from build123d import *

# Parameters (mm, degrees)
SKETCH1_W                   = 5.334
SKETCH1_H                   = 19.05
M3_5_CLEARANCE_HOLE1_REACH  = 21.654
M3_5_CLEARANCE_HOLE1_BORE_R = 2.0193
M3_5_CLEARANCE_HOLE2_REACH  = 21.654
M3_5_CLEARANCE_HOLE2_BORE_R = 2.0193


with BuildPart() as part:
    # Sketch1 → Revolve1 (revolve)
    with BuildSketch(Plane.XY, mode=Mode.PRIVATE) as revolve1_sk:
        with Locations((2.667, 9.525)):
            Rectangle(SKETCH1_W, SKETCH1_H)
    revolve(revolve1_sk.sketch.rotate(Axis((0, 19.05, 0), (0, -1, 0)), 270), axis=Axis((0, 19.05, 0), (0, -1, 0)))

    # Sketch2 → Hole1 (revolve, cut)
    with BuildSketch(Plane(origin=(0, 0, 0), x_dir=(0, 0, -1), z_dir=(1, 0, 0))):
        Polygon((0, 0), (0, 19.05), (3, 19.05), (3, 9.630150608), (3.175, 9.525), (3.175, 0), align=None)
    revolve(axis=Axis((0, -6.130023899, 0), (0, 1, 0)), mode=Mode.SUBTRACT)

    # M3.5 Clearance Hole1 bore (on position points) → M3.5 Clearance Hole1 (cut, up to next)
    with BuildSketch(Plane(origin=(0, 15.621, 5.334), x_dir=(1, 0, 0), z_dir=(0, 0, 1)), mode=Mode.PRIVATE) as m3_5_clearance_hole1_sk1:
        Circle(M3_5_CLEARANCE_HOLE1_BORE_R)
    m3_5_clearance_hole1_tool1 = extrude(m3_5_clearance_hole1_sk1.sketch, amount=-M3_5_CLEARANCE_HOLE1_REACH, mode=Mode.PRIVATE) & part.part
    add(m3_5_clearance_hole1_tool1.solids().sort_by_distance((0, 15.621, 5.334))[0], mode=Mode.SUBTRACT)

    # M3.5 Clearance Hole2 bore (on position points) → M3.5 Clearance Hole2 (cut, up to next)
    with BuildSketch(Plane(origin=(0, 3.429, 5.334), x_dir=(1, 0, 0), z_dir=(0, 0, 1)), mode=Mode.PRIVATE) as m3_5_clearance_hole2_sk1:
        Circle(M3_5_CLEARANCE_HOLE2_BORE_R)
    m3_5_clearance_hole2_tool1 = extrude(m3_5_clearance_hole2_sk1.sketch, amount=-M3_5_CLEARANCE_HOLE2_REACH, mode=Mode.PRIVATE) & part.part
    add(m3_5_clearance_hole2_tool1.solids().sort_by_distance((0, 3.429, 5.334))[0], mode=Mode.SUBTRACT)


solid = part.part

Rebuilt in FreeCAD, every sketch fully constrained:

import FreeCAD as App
import Part
import Sketcher
from FreeCAD import Vector
Q = App.Units.Quantity


def add_polygon(sketch, points):
    """Adds a closed chain of lines whose ends are joined by coincident constraints."""
    first, n = sketch.GeometryCount, len(points)
    for a, b in zip(points, points[1:] + points[:1]):
        sketch.addGeometry(Part.LineSegment(App.Vector(*a, 0), App.Vector(*b, 0)), False)
    for i in range(n):
        sketch.addConstraint(Sketcher.Constraint("Coincident", first + i, 2, first + (i + 1) % n, 1))

doc = App.newDocument("Part")
params = doc.addObject("Spreadsheet::Sheet", "Params")
for row, (alias, value) in enumerate([
    ("sketch1_width", "0.21 in"),
    ("sketch1_height", "0.75 in"),
    ("revolution_angle", "360 deg"),
    ("sketch2_width", "0.75 in"),
    ("sketch2_width2", "0.375 in"),
    ("sketch2_height", "0.125 in"),
    ("groove_angle", "360 deg"),
    ("sketch3_diameter", "0.159 in"),
    ("sketch4_diameter", "0.159 in"),
], start=1):
    params.set(f"A{row}", alias)
    params.set(f"B{row}", "=" + value)
    params.setAlias(f"B{row}", alias)

body = doc.addObject("PartDesign::Body", "Body")

sketch1 = body.newObject("Sketcher::SketchObject", "Sketch")
sketch1.AttachmentSupport = (doc.getObject("XY_Plane"), [""])
sketch1.MapMode = "FlatFace"
add_polygon(sketch1, [(0, 19), (0, 0), (5, 0), (5, 19)])
sketch1.addConstraint(Sketcher.Constraint("Vertical", 0))
sketch1.addConstraint(Sketcher.Constraint("Horizontal", 1))
sketch1.addConstraint(Sketcher.Constraint("Vertical", 2))
sketch1.addConstraint(Sketcher.Constraint("Horizontal", 3))
sketch1.addConstraint(Sketcher.Constraint("Coincident", 0, 2, -1, 1))
sketch1.addConstraint(Sketcher.Constraint("DistanceX", 1, 1, 1, 2, Q("0.21 in")))
sketch1.addConstraint(Sketcher.Constraint("DistanceY", 0, 2, 0, 1, Q("0.75 in")))
sketch1.setExpression("Constraints[9]", "Params.sketch1_width")
sketch1.setExpression("Constraints[10]", "Params.sketch1_height")
revolution = body.newObject("PartDesign::Revolution", "Revolution")
revolution.Profile = sketch1
revolution.ReferenceAxis = (sketch1, ["V_Axis"])
revolution.setExpression("Angle", "Params.revolution_angle")

sketch2 = body.newObject("Sketcher::SketchObject", "Sketch001")
sketch2.AttachmentSupport = (doc.getObject("YZ_Plane"), [""])
sketch2.MapMode = "FlatFace"
add_polygon(sketch2, [(19.05, 0), (0, 0), (0, -3.17), (9.53, -3.17), (9.63, -3), (19.05, -3)])
sketch2.addConstraint(Sketcher.Constraint("Horizontal", 0))
sketch2.addConstraint(Sketcher.Constraint("Vertical", 1))
sketch2.addConstraint(Sketcher.Constraint("Horizontal", 2))
sketch2.addConstraint(Sketcher.Constraint("Horizontal", 4))
sketch2.addConstraint(Sketcher.Constraint("Vertical", 5))
sketch2.addConstraint(Sketcher.Constraint("Coincident", 0, 2, -1, 1))
sketch2.addConstraint(Sketcher.Constraint("Angle", 3, Q("59 deg")))
sketch2.addConstraint(Sketcher.Constraint("DistanceX", 0, 2, 0, 1, Q("0.75 in")))
sketch2.addConstraint(Sketcher.Constraint("DistanceX", 2, 1, 2, 2, Q("0.375 in")))
sketch2.addConstraint(Sketcher.Constraint("DistanceY", 1, 2, 1, 1, Q("0.125 in")))
sketch2.addConstraint(Sketcher.Constraint("DistanceY", 5, 1, 5, 2, 3.0))
sketch2.setExpression("Constraints[13]", "Params.sketch2_width")
sketch2.setExpression("Constraints[14]", "Params.sketch2_width2")
sketch2.setExpression("Constraints[15]", "Params.sketch2_height")
groove = body.newObject("PartDesign::Groove", "Groove")
groove.Profile = sketch2
groove.ReferenceAxis = (sketch2, ["H_Axis"])
groove.setExpression("Angle", "Params.groove_angle")

sketch3 = body.newObject("Sketcher::SketchObject", "Sketch002")
sketch3.AttachmentSupport = (doc.getObject("XY_Plane"), [""])
sketch3.MapMode = "FlatFace"
sketch3.AttachmentOffset = App.Placement(Vector(0, 0, 0.21 * 25.4), App.Rotation())
sketch3.addGeometry(Part.Circle(Vector(0, 15.6, 0), Vector(0, 0, 1), 2), False)
sketch3.addConstraint(Sketcher.Constraint("PointOnObject", 0, 3, -2))
sketch3.addConstraint(Sketcher.Constraint("Diameter", 0, Q("0.159 in")))
sketch3.addConstraint(Sketcher.Constraint("DistanceY", -1, 1, 0, 3, Q("0.615 in")))
sketch3.setExpression("Constraints[1]", "Params.sketch3_diameter")
pocket1 = body.newObject("PartDesign::Pocket", "Pocket")
pocket1.Profile = sketch3
pocket1.Type = "UpToFirst"

sketch4 = body.newObject("Sketcher::SketchObject", "Sketch003")
sketch4.AttachmentSupport = (doc.getObject("XY_Plane"), [""])
sketch4.MapMode = "FlatFace"
sketch4.AttachmentOffset = App.Placement(Vector(0, 0, 0.21 * 25.4), App.Rotation())
sketch4.addGeometry(Part.Circle(Vector(0, 3.4, 0), Vector(0, 0, 1), 2), False)
sketch4.addConstraint(Sketcher.Constraint("PointOnObject", 0, 3, -2))
sketch4.addConstraint(Sketcher.Constraint("Diameter", 0, Q("0.159 in")))
sketch4.addConstraint(Sketcher.Constraint("DistanceY", -1, 1, 0, 3, Q("0.135 in")))
sketch4.setExpression("Constraints[1]", "Params.sketch4_diameter")
pocket2 = body.newObject("PartDesign::Pocket", "Pocket001")
pocket2.Profile = sketch4
pocket2.Type = "UpToFirst"

doc.recompute()
